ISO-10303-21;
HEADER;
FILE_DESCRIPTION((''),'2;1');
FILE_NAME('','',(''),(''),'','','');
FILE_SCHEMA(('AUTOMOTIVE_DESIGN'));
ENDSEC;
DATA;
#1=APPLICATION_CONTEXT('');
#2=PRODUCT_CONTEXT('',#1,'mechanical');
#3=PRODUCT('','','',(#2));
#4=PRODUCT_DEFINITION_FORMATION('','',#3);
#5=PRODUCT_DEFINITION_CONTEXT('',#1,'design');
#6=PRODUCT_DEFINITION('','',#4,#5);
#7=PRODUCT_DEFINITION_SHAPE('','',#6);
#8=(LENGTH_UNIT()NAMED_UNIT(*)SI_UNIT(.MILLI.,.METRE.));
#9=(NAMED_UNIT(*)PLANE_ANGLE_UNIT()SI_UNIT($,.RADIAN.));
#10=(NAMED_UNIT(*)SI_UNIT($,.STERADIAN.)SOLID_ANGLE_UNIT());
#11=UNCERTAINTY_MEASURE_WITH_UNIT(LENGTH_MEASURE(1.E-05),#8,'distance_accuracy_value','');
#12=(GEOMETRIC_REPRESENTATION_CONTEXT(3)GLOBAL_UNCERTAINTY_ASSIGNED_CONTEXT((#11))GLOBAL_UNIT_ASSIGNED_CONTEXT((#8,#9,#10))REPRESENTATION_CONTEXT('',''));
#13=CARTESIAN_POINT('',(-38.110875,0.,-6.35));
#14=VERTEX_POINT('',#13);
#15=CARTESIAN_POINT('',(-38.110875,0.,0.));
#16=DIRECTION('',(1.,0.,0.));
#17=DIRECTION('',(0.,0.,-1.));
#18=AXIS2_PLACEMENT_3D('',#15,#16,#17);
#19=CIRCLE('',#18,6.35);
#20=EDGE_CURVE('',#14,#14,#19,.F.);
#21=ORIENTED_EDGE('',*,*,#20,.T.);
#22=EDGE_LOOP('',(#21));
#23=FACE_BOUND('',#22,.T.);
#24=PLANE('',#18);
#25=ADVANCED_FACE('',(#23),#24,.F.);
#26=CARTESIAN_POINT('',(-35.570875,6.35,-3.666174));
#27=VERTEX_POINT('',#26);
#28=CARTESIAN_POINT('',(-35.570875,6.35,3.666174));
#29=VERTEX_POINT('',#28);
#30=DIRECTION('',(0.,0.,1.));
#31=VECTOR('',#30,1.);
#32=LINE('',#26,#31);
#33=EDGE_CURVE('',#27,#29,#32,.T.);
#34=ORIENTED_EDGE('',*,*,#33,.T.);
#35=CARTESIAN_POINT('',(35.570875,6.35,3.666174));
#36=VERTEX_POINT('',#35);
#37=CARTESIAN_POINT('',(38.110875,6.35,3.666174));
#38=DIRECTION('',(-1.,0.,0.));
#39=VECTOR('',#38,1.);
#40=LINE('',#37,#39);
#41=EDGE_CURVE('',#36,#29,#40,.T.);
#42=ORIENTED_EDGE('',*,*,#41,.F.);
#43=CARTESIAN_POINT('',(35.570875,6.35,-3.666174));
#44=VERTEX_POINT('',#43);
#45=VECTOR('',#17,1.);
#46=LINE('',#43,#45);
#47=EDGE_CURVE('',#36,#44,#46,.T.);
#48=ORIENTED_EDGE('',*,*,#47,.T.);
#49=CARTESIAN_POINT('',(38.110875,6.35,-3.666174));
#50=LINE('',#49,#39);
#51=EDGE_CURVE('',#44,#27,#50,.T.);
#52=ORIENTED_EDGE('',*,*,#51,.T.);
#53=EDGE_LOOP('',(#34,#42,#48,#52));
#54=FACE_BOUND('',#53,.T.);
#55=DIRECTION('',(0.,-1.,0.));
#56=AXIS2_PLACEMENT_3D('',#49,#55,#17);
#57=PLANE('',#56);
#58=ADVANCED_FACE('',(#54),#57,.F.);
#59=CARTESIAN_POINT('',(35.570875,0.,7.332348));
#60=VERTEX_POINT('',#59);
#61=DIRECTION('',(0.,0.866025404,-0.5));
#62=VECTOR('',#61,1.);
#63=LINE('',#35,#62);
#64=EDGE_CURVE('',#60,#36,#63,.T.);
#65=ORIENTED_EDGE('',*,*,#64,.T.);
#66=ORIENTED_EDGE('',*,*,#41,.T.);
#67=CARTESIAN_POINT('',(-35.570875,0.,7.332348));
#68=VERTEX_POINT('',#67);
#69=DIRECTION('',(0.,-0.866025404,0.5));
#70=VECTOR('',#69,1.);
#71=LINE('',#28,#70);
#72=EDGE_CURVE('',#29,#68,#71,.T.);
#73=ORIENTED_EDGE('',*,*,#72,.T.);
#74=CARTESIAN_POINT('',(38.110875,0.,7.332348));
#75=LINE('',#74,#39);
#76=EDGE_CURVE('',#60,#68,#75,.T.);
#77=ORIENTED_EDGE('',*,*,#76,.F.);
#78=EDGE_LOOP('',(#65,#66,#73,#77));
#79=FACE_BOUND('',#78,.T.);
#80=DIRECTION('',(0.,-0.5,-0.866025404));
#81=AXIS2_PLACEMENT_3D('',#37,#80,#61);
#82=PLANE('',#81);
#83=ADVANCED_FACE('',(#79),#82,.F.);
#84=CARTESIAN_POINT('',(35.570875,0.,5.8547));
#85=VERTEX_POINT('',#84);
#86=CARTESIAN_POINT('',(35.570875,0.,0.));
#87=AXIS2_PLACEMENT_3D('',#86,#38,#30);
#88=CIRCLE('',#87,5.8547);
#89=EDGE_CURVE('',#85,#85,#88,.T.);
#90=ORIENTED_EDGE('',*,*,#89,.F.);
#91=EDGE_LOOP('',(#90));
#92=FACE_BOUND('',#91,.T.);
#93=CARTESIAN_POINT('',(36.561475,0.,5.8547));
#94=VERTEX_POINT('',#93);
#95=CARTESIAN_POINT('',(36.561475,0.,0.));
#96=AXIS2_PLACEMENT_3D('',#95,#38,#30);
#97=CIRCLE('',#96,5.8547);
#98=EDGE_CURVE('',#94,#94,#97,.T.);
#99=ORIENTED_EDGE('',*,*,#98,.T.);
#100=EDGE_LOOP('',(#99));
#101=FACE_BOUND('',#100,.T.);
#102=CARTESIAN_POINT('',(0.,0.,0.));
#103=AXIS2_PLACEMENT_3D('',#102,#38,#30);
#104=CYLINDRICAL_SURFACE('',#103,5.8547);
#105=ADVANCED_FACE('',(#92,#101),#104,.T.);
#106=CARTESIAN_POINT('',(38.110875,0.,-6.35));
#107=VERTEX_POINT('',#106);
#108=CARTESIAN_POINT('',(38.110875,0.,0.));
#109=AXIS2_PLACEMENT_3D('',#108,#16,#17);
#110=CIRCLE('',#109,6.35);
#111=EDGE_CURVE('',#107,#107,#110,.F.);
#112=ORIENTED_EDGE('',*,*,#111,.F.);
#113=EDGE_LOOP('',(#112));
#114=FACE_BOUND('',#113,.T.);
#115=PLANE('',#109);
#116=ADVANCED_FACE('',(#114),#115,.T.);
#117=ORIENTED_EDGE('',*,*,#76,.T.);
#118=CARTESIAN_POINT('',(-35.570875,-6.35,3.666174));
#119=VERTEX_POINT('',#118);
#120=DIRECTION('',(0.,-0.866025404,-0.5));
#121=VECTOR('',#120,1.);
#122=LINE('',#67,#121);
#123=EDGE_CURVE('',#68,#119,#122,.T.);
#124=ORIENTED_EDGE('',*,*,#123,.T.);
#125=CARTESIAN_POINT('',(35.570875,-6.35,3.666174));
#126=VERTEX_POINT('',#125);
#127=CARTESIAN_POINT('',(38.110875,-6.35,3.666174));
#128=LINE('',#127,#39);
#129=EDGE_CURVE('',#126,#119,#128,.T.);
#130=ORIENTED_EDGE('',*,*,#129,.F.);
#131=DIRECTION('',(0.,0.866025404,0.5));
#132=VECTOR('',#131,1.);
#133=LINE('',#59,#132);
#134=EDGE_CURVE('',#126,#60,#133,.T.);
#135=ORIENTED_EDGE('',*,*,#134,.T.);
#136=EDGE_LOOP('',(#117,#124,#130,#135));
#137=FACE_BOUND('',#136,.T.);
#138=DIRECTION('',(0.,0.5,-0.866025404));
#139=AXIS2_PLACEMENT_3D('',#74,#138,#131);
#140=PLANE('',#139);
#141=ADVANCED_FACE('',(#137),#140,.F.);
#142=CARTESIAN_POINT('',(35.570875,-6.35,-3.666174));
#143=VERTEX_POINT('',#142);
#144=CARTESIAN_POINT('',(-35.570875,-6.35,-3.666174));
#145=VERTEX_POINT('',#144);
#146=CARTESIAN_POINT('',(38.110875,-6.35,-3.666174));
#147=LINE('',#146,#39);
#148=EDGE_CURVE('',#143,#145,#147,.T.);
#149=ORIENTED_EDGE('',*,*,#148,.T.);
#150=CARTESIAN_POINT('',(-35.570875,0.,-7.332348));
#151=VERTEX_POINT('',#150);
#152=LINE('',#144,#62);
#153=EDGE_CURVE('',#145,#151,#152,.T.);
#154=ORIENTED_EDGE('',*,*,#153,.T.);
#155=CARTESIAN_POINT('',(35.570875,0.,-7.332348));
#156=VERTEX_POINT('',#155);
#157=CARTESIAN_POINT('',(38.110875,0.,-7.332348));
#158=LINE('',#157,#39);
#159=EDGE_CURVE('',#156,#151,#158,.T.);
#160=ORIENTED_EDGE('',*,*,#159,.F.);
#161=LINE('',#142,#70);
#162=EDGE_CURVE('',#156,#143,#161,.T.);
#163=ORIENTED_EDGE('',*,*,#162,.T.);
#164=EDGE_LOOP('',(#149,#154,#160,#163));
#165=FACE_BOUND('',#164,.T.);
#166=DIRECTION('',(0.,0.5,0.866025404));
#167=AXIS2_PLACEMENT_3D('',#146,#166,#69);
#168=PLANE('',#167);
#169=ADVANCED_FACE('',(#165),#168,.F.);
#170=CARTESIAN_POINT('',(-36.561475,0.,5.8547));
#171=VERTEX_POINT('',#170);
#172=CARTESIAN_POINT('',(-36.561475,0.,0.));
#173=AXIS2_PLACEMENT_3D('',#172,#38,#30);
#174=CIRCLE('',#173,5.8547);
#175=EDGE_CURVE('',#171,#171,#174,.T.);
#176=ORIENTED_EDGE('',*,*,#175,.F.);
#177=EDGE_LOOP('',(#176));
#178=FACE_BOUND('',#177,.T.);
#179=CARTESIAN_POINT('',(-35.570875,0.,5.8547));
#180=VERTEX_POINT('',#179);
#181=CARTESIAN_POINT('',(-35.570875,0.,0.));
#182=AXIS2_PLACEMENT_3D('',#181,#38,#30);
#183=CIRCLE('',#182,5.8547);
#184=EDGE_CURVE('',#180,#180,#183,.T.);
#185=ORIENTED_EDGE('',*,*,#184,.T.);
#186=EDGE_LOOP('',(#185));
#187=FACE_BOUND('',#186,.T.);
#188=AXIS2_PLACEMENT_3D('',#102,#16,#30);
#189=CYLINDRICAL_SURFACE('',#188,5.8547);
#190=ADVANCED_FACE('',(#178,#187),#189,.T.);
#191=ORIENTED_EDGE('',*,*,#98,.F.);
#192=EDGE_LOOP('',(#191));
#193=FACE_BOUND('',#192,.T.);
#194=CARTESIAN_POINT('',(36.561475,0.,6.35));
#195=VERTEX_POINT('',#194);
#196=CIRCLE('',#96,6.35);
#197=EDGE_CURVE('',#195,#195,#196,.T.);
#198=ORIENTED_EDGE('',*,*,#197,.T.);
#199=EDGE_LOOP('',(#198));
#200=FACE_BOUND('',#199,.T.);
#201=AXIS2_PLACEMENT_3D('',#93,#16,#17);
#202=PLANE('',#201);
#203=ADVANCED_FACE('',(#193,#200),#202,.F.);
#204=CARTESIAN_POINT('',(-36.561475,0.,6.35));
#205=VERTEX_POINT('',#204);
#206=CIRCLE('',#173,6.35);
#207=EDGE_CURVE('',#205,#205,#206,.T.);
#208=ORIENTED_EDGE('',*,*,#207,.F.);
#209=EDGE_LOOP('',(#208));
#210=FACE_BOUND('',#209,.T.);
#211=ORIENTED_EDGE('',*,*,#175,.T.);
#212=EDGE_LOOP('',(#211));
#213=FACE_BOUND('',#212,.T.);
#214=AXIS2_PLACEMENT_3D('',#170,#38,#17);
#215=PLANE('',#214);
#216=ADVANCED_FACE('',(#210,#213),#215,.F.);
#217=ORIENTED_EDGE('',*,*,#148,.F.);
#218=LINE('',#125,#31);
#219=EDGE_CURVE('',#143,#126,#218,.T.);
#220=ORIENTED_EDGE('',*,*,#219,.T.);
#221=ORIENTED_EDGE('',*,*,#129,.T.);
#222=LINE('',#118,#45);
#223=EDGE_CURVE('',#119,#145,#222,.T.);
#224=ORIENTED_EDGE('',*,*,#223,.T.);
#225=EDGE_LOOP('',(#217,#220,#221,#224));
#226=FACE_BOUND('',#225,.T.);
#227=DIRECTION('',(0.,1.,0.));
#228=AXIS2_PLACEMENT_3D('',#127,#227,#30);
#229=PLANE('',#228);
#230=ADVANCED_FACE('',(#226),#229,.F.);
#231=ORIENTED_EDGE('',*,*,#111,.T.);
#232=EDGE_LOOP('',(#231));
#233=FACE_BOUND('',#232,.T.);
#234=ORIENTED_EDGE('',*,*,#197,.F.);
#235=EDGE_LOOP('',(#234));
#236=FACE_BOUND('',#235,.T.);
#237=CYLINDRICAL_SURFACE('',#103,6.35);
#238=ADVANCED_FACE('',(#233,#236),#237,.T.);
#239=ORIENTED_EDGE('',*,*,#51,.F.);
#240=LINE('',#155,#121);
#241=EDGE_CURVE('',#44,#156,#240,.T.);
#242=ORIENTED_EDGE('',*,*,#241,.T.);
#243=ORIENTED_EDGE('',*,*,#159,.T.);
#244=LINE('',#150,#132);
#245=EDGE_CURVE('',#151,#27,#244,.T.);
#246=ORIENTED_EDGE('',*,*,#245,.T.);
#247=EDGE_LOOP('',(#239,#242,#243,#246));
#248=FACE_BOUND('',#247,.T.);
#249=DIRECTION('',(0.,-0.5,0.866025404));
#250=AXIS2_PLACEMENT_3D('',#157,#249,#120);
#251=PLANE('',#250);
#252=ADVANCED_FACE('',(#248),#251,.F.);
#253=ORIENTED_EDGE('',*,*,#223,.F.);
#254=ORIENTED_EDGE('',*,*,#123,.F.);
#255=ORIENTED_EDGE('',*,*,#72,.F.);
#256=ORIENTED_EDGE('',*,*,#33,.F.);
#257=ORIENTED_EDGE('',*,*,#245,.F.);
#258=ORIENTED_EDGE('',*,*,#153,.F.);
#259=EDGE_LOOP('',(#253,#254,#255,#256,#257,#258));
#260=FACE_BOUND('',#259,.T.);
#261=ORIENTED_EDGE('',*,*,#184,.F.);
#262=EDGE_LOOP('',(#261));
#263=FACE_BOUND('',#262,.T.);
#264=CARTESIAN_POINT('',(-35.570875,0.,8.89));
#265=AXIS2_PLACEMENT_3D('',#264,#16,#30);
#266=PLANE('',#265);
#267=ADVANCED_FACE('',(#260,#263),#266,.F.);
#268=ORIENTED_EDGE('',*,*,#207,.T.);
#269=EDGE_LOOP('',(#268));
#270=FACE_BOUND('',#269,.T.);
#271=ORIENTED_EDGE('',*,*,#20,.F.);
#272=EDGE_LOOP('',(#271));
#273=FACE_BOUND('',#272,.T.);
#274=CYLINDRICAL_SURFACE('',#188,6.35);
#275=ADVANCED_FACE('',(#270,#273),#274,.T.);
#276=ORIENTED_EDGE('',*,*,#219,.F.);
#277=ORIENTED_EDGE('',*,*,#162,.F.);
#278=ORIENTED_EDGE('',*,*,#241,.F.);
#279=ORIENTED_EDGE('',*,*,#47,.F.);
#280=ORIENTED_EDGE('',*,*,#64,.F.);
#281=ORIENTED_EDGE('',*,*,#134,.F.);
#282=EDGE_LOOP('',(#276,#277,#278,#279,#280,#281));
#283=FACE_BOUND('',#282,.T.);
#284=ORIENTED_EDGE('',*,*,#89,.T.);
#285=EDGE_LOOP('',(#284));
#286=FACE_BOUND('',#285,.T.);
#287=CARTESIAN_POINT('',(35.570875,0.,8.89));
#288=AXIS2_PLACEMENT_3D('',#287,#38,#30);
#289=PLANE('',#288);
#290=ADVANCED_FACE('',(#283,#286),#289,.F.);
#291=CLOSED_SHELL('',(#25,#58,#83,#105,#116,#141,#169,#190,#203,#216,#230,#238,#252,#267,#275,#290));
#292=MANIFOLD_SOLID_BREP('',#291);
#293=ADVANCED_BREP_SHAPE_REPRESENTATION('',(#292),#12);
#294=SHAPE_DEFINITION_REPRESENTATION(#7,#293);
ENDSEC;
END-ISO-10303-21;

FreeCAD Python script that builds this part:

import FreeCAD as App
import Part
import Sketcher
from FreeCAD import Vector
Q = App.Units.Quantity

doc = App.newDocument("Part")
body = doc.addObject("PartDesign::Body", "Body")

sketch1 = body.newObject("Sketcher::SketchObject", "Sketch")
sketch1.AttachmentSupport = (doc.getObject("YZ_Plane"), [""])
sketch1.MapMode = "FlatFace"
sketch1.addGeometry([
    Part.LineSegment(Vector(0, -7, 0), Vector(6, -4, 0)),
    Part.LineSegment(Vector(6, -4, 0), Vector(6, 4, 0)),
    Part.LineSegment(Vector(6, 4, 0), Vector(0, 7, 0)),
    Part.LineSegment(Vector(0, 7, 0), Vector(-6, 4, 0)),
    Part.LineSegment(Vector(-6, 4, 0), Vector(-6, -4, 0)),
    Part.LineSegment(Vector(-6, -4, 0), Vector(0, -7, 0)),
], False)
sketch1.addConstraint([
    Sketcher.Constraint("Coincident", 0, 2, 1, 1),
    Sketcher.Constraint("Coincident", 1, 2, 2, 1),
    Sketcher.Constraint("Coincident", 2, 2, 3, 1),
    Sketcher.Constraint("Coincident", 3, 2, 4, 1),
    Sketcher.Constraint("Coincident", 4, 2, 5, 1),
    Sketcher.Constraint("Coincident", 5, 2, 0, 1),
    Sketcher.Constraint("Vertical", 1),
    Sketcher.Constraint("Vertical", 4),
    Sketcher.Constraint("Symmetric", 0, 2, 3, 2, -1, 1),
    Sketcher.Constraint("Symmetric", 2, 2, 5, 2, -1, 1),
    Sketcher.Constraint("PointOnObject", 2, 2, -2),
    Sketcher.Constraint("Parallel", 2, 5),
    Sketcher.Constraint("Horizontal", 1, 2, 3, 2),
    Sketcher.Constraint("Angle", 0, Q("30 deg")),
    Sketcher.Constraint("DistanceX", 3, 2, 1, 2, Q("0.5 in")),
    Sketcher.Constraint("DistanceY", 1, 1, 1, 2, Q("7.332348 mm")),
])
pad1 = body.newObject("PartDesign::Pad", "Pad")
pad1.Profile = sketch1
pad1.Length = 76.22175
pad1.Midplane = True

sketch2 = body.newObject("Sketcher::SketchObject", "Sketch001")
sketch2.AttachmentSupport = (doc.getObject("XZ_Plane"), [""])
sketch2.MapMode = "FlatFace"
sketch2.addGeometry([
    Part.LineSegment(Vector(36.56, 5.85, 0), Vector(35.57, 5.85, 0)),
    Part.LineSegment(Vector(35.57, 5.85, 0), Vector(35.57, 8.89, 0)),
    Part.LineSegment(Vector(35.57, 8.89, 0), Vector(38.11, 8.89, 0)),
    Part.LineSegment(Vector(38.11, 8.89, 0), Vector(38.11, 6.35, 0)),
    Part.LineSegment(Vector(38.11, 6.35, 0), Vector(36.56, 6.35, 0)),
    Part.LineSegment(Vector(36.56, 6.35, 0), Vector(36.56, 5.85, 0)),
], False)
sketch2.addConstraint([
    Sketcher.Constraint("Coincident", 0, 2, 1, 1),
    Sketcher.Constraint("Coincident", 1, 2, 2, 1),
    Sketcher.Constraint("Coincident", 2, 2, 3, 1),
    Sketcher.Constraint("Coincident", 3, 2, 4, 1),
    Sketcher.Constraint("Coincident", 4, 2, 5, 1),
    Sketcher.Constraint("Coincident", 5, 2, 0, 1),
    Sketcher.Constraint("Horizontal", 0),
    Sketcher.Constraint("Vertical", 1),
    Sketcher.Constraint("Horizontal", 2),
    Sketcher.Constraint("Vertical", 3),
    Sketcher.Constraint("Horizontal", 4),
    Sketcher.Constraint("Vertical", 5),
    Sketcher.Constraint("Equal", 2, 3),
    Sketcher.Constraint("DistanceX", 2, 1, 2, 2, Q("0.1 in")),
    Sketcher.Constraint("DistanceX", 0, 2, 0, 1, Q("0.039 in")),
    Sketcher.Constraint("DistanceY", -1, 1, 1, 2, Q("0.35 in")),
    Sketcher.Constraint("DistanceY", 1, 1, 1, 2, Q("0.1195 in")),
    Sketcher.Constraint("DistanceX", -1, 1, 0, 2, Q("35.570875 mm")),
])
groove = body.newObject("PartDesign::Groove", "Groove")
groove.Profile = sketch2
groove.ReferenceAxis = (sketch2, ["H_Axis"])
groove.Angle = 360
doc.recompute()

mirrored = body.newObject("PartDesign::Mirrored", "Mirrored")
mirrored.Originals = [groove]
mirrored.MirrorPlane = (doc.getObject("YZ_Plane"), [""])
body.Tip = mirrored

doc.recompute()
